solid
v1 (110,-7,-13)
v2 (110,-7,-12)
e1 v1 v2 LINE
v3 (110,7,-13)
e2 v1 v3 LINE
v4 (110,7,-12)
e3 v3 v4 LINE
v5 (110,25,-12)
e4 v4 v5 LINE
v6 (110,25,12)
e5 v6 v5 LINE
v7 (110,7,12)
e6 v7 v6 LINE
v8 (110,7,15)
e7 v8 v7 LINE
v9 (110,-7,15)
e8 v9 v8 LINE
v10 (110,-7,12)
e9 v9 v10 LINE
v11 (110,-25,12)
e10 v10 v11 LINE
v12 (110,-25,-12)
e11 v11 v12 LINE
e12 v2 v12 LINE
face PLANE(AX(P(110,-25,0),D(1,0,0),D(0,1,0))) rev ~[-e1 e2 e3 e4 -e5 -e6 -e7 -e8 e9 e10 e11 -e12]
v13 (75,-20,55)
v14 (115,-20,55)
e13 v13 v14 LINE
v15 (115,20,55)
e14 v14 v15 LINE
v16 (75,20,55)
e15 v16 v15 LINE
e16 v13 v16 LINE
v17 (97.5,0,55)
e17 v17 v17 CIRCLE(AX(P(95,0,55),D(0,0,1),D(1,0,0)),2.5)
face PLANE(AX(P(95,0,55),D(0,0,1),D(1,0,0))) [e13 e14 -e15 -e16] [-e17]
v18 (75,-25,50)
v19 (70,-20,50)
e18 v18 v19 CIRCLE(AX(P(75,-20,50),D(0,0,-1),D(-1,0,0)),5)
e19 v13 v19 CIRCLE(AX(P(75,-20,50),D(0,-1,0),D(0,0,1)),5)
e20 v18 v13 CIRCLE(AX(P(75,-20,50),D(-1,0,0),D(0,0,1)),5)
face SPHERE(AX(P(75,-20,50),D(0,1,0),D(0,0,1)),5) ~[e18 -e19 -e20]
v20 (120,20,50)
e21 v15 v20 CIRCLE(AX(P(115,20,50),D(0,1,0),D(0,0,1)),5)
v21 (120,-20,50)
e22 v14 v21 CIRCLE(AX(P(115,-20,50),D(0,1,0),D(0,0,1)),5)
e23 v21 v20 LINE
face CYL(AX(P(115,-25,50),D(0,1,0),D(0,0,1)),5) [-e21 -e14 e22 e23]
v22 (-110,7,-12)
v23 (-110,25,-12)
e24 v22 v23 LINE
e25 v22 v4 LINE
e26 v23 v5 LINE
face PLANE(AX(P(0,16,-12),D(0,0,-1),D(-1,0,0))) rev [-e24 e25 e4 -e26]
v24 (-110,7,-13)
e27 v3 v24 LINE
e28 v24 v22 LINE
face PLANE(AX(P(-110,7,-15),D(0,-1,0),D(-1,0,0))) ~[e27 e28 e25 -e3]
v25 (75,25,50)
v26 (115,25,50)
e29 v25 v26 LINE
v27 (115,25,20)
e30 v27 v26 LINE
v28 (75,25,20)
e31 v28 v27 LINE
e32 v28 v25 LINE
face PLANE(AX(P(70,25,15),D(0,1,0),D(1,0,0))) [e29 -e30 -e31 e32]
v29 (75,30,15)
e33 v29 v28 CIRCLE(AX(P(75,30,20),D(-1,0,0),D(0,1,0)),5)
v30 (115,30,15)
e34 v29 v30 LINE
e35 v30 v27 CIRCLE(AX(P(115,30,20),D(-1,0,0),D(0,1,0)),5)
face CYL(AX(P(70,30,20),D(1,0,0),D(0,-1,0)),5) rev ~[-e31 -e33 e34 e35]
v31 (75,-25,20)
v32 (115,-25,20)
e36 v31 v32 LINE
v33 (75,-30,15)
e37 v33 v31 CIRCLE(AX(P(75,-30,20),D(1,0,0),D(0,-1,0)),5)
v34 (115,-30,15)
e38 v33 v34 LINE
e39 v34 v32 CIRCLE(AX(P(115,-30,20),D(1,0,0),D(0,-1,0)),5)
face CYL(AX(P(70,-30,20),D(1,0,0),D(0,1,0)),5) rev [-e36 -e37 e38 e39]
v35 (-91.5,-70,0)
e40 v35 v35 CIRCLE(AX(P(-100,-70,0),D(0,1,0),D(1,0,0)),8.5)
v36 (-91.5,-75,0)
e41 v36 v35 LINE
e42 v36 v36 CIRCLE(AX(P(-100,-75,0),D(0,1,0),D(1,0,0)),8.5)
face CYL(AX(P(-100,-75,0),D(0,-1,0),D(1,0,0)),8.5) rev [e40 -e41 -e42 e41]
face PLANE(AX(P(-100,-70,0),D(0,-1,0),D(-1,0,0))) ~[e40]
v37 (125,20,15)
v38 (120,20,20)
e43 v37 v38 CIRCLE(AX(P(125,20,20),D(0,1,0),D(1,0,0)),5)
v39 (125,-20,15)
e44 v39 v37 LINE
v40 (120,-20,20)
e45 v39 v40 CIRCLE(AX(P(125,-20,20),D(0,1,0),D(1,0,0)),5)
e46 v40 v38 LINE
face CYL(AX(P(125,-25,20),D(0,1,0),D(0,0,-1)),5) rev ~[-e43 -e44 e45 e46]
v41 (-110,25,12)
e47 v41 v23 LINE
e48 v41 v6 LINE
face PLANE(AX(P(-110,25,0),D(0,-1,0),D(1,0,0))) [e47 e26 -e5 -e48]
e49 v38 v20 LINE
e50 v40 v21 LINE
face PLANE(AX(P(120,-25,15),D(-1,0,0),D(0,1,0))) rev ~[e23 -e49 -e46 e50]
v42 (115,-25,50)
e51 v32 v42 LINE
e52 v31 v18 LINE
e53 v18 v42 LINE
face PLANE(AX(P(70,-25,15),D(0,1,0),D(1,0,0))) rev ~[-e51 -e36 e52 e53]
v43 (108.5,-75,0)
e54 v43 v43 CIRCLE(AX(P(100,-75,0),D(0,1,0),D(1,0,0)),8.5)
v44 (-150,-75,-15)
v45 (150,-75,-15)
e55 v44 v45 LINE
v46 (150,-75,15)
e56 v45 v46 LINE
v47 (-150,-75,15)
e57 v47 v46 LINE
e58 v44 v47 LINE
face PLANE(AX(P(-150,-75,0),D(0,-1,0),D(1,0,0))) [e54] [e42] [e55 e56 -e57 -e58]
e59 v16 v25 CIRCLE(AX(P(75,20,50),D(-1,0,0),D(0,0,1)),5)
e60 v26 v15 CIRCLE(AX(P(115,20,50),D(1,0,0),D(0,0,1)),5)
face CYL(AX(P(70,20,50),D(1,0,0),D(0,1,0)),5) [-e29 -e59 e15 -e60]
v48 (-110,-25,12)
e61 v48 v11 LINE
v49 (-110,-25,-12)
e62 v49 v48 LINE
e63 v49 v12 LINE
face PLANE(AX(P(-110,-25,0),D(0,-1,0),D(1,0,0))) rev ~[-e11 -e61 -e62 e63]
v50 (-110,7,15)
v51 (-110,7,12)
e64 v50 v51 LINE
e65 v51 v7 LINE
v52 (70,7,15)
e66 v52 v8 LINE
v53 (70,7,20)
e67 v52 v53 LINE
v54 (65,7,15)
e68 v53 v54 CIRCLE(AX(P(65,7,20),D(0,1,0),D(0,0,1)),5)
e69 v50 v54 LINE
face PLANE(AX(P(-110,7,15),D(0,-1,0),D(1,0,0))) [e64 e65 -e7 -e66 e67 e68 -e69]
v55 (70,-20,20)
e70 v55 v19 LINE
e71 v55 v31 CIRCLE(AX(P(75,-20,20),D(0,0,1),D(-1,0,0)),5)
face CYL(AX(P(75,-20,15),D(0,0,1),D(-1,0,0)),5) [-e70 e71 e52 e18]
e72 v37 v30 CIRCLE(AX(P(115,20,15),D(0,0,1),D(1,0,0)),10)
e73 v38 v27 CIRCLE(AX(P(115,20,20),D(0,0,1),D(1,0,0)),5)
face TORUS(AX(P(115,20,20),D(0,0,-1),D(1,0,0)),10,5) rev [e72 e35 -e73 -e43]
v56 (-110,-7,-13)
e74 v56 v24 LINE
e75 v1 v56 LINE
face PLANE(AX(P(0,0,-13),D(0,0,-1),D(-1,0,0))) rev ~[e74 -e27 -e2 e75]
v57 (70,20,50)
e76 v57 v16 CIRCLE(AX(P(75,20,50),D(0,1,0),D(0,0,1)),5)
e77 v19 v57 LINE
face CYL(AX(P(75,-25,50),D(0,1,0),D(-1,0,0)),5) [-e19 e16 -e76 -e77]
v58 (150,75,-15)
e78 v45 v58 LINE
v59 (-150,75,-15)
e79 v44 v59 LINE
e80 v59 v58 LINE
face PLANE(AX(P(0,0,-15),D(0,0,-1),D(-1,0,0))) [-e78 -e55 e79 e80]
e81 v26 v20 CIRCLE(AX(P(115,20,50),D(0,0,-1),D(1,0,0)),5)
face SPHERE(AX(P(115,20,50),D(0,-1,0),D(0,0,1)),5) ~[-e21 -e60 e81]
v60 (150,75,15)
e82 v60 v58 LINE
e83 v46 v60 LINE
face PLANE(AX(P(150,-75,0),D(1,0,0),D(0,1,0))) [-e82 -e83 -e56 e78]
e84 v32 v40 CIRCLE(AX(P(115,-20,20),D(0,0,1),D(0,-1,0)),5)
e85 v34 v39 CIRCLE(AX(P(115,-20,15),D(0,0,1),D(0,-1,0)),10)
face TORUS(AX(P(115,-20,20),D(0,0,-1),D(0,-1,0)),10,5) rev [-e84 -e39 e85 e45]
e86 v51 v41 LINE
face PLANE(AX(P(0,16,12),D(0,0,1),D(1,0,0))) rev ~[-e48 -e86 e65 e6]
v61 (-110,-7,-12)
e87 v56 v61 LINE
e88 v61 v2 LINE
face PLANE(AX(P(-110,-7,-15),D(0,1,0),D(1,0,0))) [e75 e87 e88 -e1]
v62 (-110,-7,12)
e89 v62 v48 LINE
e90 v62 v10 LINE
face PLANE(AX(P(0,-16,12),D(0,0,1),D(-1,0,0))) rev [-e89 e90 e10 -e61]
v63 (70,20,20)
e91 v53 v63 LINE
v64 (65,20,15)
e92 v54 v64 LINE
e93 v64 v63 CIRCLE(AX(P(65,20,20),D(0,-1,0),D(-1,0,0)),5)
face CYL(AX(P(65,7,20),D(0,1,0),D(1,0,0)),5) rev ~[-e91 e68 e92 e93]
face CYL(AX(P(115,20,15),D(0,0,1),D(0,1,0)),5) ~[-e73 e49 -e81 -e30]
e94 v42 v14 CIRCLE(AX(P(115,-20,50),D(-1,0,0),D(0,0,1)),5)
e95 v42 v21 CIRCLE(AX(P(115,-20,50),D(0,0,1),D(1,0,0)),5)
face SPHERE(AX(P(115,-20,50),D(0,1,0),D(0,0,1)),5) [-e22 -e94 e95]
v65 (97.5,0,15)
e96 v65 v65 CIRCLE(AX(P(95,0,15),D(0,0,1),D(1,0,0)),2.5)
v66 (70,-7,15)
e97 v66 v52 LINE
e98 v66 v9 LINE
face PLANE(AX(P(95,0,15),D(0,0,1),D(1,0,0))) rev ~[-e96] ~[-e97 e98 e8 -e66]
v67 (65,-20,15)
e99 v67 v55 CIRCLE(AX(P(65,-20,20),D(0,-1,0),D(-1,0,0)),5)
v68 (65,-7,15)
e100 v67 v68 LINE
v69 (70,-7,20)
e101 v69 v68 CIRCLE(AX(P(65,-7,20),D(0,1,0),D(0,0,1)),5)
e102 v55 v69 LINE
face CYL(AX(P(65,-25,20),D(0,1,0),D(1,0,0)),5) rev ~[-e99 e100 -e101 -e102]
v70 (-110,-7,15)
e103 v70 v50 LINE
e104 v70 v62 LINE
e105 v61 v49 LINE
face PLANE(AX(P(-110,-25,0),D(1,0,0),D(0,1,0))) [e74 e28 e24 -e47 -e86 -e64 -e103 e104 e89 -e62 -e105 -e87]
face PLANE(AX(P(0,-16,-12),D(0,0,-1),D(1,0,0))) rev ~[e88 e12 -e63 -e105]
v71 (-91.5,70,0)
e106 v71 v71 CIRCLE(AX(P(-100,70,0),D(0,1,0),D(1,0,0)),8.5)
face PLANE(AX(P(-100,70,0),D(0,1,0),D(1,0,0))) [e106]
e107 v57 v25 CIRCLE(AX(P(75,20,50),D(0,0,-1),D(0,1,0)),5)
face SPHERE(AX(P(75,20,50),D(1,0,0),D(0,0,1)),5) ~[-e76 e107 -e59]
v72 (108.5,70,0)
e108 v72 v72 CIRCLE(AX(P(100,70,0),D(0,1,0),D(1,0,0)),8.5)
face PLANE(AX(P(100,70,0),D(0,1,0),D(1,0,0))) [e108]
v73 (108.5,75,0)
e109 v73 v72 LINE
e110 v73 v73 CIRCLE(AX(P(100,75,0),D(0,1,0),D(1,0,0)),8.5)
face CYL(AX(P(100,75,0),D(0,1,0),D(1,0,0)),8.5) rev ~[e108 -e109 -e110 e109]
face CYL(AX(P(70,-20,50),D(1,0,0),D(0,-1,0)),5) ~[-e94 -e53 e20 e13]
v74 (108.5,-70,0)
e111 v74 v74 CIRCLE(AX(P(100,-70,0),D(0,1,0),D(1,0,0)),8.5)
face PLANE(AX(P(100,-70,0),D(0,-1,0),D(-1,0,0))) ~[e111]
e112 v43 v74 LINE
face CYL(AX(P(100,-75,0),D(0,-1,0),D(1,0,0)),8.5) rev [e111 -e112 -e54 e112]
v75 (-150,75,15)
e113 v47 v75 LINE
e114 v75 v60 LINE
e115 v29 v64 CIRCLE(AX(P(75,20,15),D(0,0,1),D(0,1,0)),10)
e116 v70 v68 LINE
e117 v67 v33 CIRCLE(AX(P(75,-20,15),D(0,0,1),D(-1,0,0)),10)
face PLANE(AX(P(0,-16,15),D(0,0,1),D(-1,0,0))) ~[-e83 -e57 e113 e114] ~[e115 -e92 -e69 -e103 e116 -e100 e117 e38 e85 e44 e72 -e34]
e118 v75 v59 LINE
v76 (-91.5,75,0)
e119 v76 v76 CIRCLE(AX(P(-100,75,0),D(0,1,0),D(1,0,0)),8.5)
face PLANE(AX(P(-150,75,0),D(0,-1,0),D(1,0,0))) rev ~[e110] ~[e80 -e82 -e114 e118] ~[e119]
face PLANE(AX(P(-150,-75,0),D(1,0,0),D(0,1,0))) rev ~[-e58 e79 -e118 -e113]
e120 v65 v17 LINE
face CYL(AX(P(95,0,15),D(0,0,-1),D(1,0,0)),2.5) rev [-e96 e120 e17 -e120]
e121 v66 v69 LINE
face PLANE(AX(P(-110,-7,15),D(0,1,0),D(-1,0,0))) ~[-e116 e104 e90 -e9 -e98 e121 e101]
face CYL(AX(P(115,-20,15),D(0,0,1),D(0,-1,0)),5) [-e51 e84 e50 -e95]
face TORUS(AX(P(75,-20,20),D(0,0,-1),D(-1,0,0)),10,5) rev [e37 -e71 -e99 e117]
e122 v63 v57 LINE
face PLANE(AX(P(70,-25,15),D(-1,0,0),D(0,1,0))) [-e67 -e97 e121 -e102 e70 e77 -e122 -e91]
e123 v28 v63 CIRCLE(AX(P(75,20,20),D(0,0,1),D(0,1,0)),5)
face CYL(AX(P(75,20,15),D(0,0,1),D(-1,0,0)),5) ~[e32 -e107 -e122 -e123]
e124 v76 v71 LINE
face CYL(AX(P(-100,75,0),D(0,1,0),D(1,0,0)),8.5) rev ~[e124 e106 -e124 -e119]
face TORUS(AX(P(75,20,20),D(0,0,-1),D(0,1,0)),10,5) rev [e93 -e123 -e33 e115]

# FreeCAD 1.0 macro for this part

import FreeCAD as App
import Part
import Sketcher
Q = App.Units.Quantity


def edges_at(feature, points):
    """Names of the edges that pass closest to the given points."""
    edges = feature.Shape.Edges
    near = lambda p: min(range(len(edges)), key=lambda i: edges[i].distToShape(Part.Vertex(*p))[0])
    return sorted({f"Edge{near(p) + 1}" for p in points})

doc = App.newDocument("Part")
body = doc.addObject("PartDesign::Body", "Body")

# Sketch on XY plane
sketch1 = doc.addObject("Sketcher::SketchObject", "Sketch")
body.addObject(sketch1)
sketch1.AttachmentSupport = (doc.XY_Plane, [""])
sketch1.MapMode = "FlatFace"
sketch1.addGeometry([
    Part.LineSegment(App.Vector(-150, 75, 0), App.Vector(-150, -75, 0)),  # 0
    Part.LineSegment(App.Vector(-150, -75, 0), App.Vector(150, -75, 0)),  # 1
    Part.LineSegment(App.Vector(150, -75, 0), App.Vector(150, 75, 0)),  # 2
    Part.LineSegment(App.Vector(150, 75, 0), App.Vector(-150, 75, 0)),  # 3
    Part.LineSegment(App.Vector(110, -25, 0), App.Vector(-110, -25, 0)),  # 4
    Part.LineSegment(App.Vector(-110, -25, 0), App.Vector(-110, 25, 0)),  # 5
    Part.LineSegment(App.Vector(-110, 25, 0), App.Vector(110, 25, 0)),  # 6
    Part.LineSegment(App.Vector(110, 25, 0), App.Vector(110, -25, 0)),  # 7
], False)
sketch1.addConstraint([
    Sketcher.Constraint("Coincident", 0, 2, 1, 1),
    Sketcher.Constraint("Coincident", 1, 2, 2, 1),
    Sketcher.Constraint("Coincident", 2, 2, 3, 1),
    Sketcher.Constraint("Coincident", 3, 2, 0, 1),
    Sketcher.Constraint("Coincident", 4, 2, 5, 1),
    Sketcher.Constraint("Coincident", 5, 2, 6, 1),
    Sketcher.Constraint("Coincident", 6, 2, 7, 1),
    Sketcher.Constraint("Coincident", 7, 2, 4, 1),
    Sketcher.Constraint("Vertical", 0),
    Sketcher.Constraint("Horizontal", 1),
    Sketcher.Constraint("Vertical", 2),
    Sketcher.Constraint("Horizontal", 3),
    Sketcher.Constraint("Horizontal", 4),
    Sketcher.Constraint("Vertical", 5),
    Sketcher.Constraint("Horizontal", 6),
    Sketcher.Constraint("Vertical", 7),
    Sketcher.Constraint("Symmetric", 0, 2, 2, 2, -1, 1),
    Sketcher.Constraint("Symmetric", 4, 2, 6, 2, -1, 1),
    Sketcher.Constraint("DistanceX", 1, 1, 1, 2, Q("300 mm")),
    Sketcher.Constraint("DistanceX", 4, 2, 4, 1, Q("220 mm")),
    Sketcher.Constraint("DistanceY", 0, 2, 0, 1, Q("150 mm")),
    Sketcher.Constraint("DistanceY", 5, 1, 5, 2, Q("50 mm")),
])
pad1 = doc.addObject("PartDesign::Pad", "Pad")
body.addObject(pad1)
pad1.Profile = sketch1
pad1.Length = 30
pad1.Midplane = True

# Sketch on XY plane
sketch2 = doc.addObject("Sketcher::SketchObject", "Sketch001")
body.addObject(sketch2)
sketch2.AttachmentSupport = (doc.XY_Plane, [""])
sketch2.MapMode = "FlatFace"
sketch2.AttachmentOffset = App.Placement(App.Vector(0, 0, 15), App.Rotation())
sketch2.addGeometry([
    Part.LineSegment(App.Vector(-110, 25, 0), App.Vector(-110, 7, 0)),
    Part.LineSegment(App.Vector(-110, 7, 0), App.Vector(110, 7, 0)),
    Part.LineSegment(App.Vector(110, 7, 0), App.Vector(110, 25, 0)),
    Part.LineSegment(App.Vector(110, 25, 0), App.Vector(-110, 25, 0)),
], False)
sketch2.addConstraint([
    Sketcher.Constraint("Coincident", 0, 2, 1, 1),
    Sketcher.Constraint("Coincident", 1, 2, 2, 1),
    Sketcher.Constraint("Coincident", 2, 2, 3, 1),
    Sketcher.Constraint("Coincident", 3, 2, 0, 1),
    Sketcher.Constraint("Vertical", 0),
    Sketcher.Constraint("Horizontal", 1),
    Sketcher.Constraint("Vertical", 2),
    Sketcher.Constraint("Horizontal", 3),
    Sketcher.Constraint("DistanceX", 1, 1, 1, 2, Q("220 mm")),
    Sketcher.Constraint("DistanceY", 0, 2, 0, 1, Q("18 mm")),
    Sketcher.Constraint("DistanceX", 0, 2, -1, 1, Q("110 mm")),
    Sketcher.Constraint("DistanceY", -1, 1, 0, 2, Q("7 mm")),
])
pad2 = doc.addObject("PartDesign::Pad", "Pad001")
body.addObject(pad2)
pad2.Profile = sketch2
pad2.Length = 3
pad2.Reversed = True
doc.recompute()

mirrored = doc.addObject("PartDesign::Mirrored", "Mirrored")
body.addObject(mirrored)
mirrored.Originals = [pad2]
mirrored.MirrorPlane = (doc.XY_Plane, [""])
body.Tip = mirrored
doc.recompute()

mirrored2 = doc.addObject("PartDesign::Mirrored", "Mirrored001")
body.addObject(mirrored2)
mirrored2.Originals = [pad2]
mirrored2.MirrorPlane = (doc.XZ_Plane, [""])
body.Tip = mirrored2

# Sketch on XY plane
sketch3 = doc.addObject("Sketcher::SketchObject", "Sketch002")
body.addObject(sketch3)
sketch3.AttachmentSupport = (doc.XY_Plane, [""])
sketch3.MapMode = "FlatFace"
sketch3.AttachmentOffset = App.Placement(App.Vector(0, 0, -15), App.Rotation())
sketch3.addGeometry([
    Part.LineSegment(App.Vector(-110, -25, 0), App.Vector(-110, -7, 0)),
    Part.LineSegment(App.Vector(-110, -7, 0), App.Vector(110, -7, 0)),
    Part.LineSegment(App.Vector(110, -7, 0), App.Vector(110, -25, 0)),
    Part.LineSegment(App.Vector(110, -25, 0), App.Vector(-110, -25, 0)),
], False)
sketch3.addConstraint([
    Sketcher.Constraint("Coincident", 0, 2, 1, 1),
    Sketcher.Constraint("Coincident", 1, 2, 2, 1),
    Sketcher.Constraint("Coincident", 2, 2, 3, 1),
    Sketcher.Constraint("Coincident", 3, 2, 0, 1),
    Sketcher.Constraint("Vertical", 0),
    Sketcher.Constraint("Horizontal", 1),
    Sketcher.Constraint("Vertical", 2),
    Sketcher.Constraint("Horizontal", 3),
    Sketcher.Constraint("DistanceX", 1, 1, 1, 2, Q("220 mm")),
    Sketcher.Constraint("DistanceY", 0, 1, 0, 2, Q("18 mm")),
    Sketcher.Constraint("DistanceX", 0, 2, -1, 1, Q("110 mm")),
    Sketcher.Constraint("DistanceY", 0, 2, -1, 1, Q("7 mm")),
])
pad3 = doc.addObject("PartDesign::Pad", "Pad002")
body.addObject(pad3)
pad3.Profile = sketch3
pad3.Length = 3

# Sketch on XY plane
sketch4 = doc.addObject("Sketcher::SketchObject", "Sketch003")
body.addObject(sketch4)
sketch4.AttachmentSupport = (doc.XY_Plane, [""])
sketch4.MapMode = "FlatFace"
sketch4.AttachmentOffset = App.Placement(App.Vector(0, 0, -15), App.Rotation())
sketch4.addGeometry([
    Part.LineSegment(App.Vector(110, 7, 0), App.Vector(110, -7, 0)),
    Part.LineSegment(App.Vector(110, -7, 0), App.Vector(-110, -7, 0)),
    Part.LineSegment(App.Vector(-110, -7, 0), App.Vector(-110, 7, 0)),
    Part.LineSegment(App.Vector(-110, 7, 0), App.Vector(110, 7, 0)),
], False)
sketch4.addConstraint([
    Sketcher.Constraint("Coincident", 0, 2, 1, 1),
    Sketcher.Constraint("Coincident", 1, 2, 2, 1),
    Sketcher.Constraint("Coincident", 2, 2, 3, 1),
    Sketcher.Constraint("Coincident", 3, 2, 0, 1),
    Sketcher.Constraint("Vertical", 0),
    Sketcher.Constraint("Horizontal", 1),
    Sketcher.Constraint("Vertical", 2),
    Sketcher.Constraint("Horizontal", 3),
    Sketcher.Constraint("Symmetric", 0, 2, 2, 2, -1, 1),
    Sketcher.Constraint("DistanceX", 1, 2, 1, 1, Q("220 mm")),
    Sketcher.Constraint("DistanceY", 0, 2, 0, 1, Q("14 mm")),
])
pad4 = doc.addObject("PartDesign::Pad", "Pad003")
body.addObject(pad4)
pad4.Profile = sketch4
pad4.Length = 2

# Sketch on XZ plane
sketch5 = doc.addObject("Sketcher::SketchObject", "Sketch004")
body.addObject(sketch5)
sketch5.AttachmentSupport = (doc.XZ_Plane, [""])
sketch5.MapMode = "FlatFace"
sketch5.AttachmentOffset = App.Placement(App.Vector(0, 0, -75), App.Rotation())
sketch5.addGeometry([
    Part.Circle(App.Vector(-100, 0, 0), App.Vector(0, 0, 1), 8.5),
    Part.Circle(App.Vector(100, 0, 0), App.Vector(0, 0, 1), 8.5),
], False)
sketch5.addConstraint([
    Sketcher.Constraint("Equal", 0, 1),
    Sketcher.Constraint("Symmetric", 0, 3, 1, 3, -1, 1),
    Sketcher.Constraint("PointOnObject", 0, 3, -1),
    Sketcher.Constraint("Diameter", 0, Q("17 mm")),
    Sketcher.Constraint("DistanceX", 0, 3, -1, 1, Q("100 mm")),
])
pocket1 = doc.addObject("PartDesign::Pocket", "Pocket")
body.addObject(pocket1)
pocket1.Profile = sketch5
pocket1.Length = 5
pocket1.Reversed = True
doc.recompute()

mirrored3 = doc.addObject("PartDesign::Mirrored", "Mirrored002")
body.addObject(mirrored3)
mirrored3.Originals = [pocket1]
mirrored3.MirrorPlane = (doc.XZ_Plane, [""])
body.Tip = mirrored3

# Sketch on XY plane
sketch6 = doc.addObject("Sketcher::SketchObject", "Sketch005")
body.addObject(sketch6)
sketch6.AttachmentSupport = (doc.XY_Plane, [""])
sketch6.MapMode = "FlatFace"
sketch6.AttachmentOffset = App.Placement(App.Vector(0, 0, 15), App.Rotation())
sketch6.addGeometry([
    Part.LineSegment(App.Vector(70, 25, 0), App.Vector(70, -25, 0)),  # 0
    Part.LineSegment(App.Vector(70, -25, 0), App.Vector(120, -25, 0)),  # 1
    Part.LineSegment(App.Vector(120, -25, 0), App.Vector(120, 25, 0)),  # 2
    Part.LineSegment(App.Vector(120, 25, 0), App.Vector(70, 25, 0)),  # 3
    Part.Circle(App.Vector(95, 0, 0), App.Vector(0, 0, 1), 2.5),  # 4
], False)
sketch6.addConstraint([
    Sketcher.Constraint("Coincident", 0, 2, 1, 1),
    Sketcher.Constraint("Coincident", 1, 2, 2, 1),
    Sketcher.Constraint("Coincident", 2, 2, 3, 1),
    Sketcher.Constraint("Coincident", 3, 2, 0, 1),
    Sketcher.Constraint("Vertical", 0),
    Sketcher.Constraint("Horizontal", 1),
    Sketcher.Constraint("Vertical", 2),
    Sketcher.Constraint("Horizontal", 3),
    Sketcher.Constraint("PointOnObject", 4, 3, -1),
    Sketcher.Constraint("Equal", 3, 0),
    Sketcher.Constraint("Diameter", 4, Q("5 mm")),
    Sketcher.Constraint("DistanceX", 1, 1, 1, 2, Q("50 mm")),
    Sketcher.Constraint("DistanceX", -1, 1, 4, 3, Q("95 mm")),
    Sketcher.Constraint("DistanceX", -1, 1, 0, 2, Q("70 mm")),
    Sketcher.Constraint("DistanceY", 0, 2, -1, 1, Q("25 mm")),
])
pad5 = doc.addObject("PartDesign::Pad", "Pad004")
body.addObject(pad5)
pad5.Profile = sketch6
pad5.Length = 40
doc.recompute()

fillet = doc.addObject("PartDesign::Fillet", "Fillet")
body.addObject(fillet)
fillet.Base = (pad5, edges_at(pad5, [
    (70, -16, 15),
    (120, 0, 55),
    (95, 25, 55),
    (70, 0, 55),
    (95, -25, 55),
    (120, 0, 15),
    (120, -25, 35),
    (95, 25, 15),
    (120, 25, 35),
    (70, 16, 15),
    (70, 25, 35),
    (95, -25, 15),
    (70, -25, 35),
]))
fillet.Radius = 5

doc.recompute()
